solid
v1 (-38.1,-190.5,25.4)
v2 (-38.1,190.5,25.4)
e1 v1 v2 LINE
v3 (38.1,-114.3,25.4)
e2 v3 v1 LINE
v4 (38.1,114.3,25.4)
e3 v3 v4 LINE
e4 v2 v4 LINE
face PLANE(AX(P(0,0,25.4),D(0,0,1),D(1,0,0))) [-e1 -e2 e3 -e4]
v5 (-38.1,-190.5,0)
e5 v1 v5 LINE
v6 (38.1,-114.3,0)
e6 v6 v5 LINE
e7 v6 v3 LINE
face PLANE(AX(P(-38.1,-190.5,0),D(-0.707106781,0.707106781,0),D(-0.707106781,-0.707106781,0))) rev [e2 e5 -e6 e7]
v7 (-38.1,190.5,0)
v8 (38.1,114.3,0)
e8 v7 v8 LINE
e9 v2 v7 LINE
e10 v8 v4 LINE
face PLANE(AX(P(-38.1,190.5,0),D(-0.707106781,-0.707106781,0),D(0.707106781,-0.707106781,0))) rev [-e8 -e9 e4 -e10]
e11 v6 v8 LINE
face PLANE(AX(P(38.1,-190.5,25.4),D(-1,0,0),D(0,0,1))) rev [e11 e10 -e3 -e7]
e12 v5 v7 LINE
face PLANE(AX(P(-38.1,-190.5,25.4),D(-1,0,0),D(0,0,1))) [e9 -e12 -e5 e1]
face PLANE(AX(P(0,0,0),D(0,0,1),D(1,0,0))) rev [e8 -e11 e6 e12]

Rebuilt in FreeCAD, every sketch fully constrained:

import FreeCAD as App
import Part
import Sketcher
Q = App.Units.Quantity


def add_polygon(sketch, points):
    """Adds a closed chain of lines whose ends are joined by coincident constraints."""
    first, n = sketch.GeometryCount, len(points)
    for a, b in zip(points, points[1:] + points[:1]):
        sketch.addGeometry(Part.LineSegment(App.Vector(*a, 0), App.Vector(*b, 0)), False)
    for i in range(n):
        sketch.addConstraint(Sketcher.Constraint("Coincident", first + i, 2, first + (i + 1) % n, 1))

doc = App.newDocument("Part")
body = doc.addObject("PartDesign::Body", "Body")

# Sketch on XY plane
sketch1 = doc.addObject("Sketcher::SketchObject", "Sketch")
body.addObject(sketch1)
sketch1.AttachmentSupport = (doc.XY_Plane, [""])
sketch1.MapMode = "FlatFace"
add_polygon(sketch1, [(-38.1, 190.5), (-38.1, -190.5), (38.1, -190.5), (38.1, 190.5)])  # lines 0-3
sketch1.addConstraint([
    Sketcher.Constraint("Vertical", 0),
    Sketcher.Constraint("Horizontal", 1),
    Sketcher.Constraint("Vertical", 2),
    Sketcher.Constraint("Horizontal", 3),
    Sketcher.Constraint("Symmetric", 0, 2, 2, 2, -1, 1),
    Sketcher.Constraint("DistanceX", 1, 1, 1, 2, Q("3 in")),
    Sketcher.Constraint("DistanceY", 0, 2, 0, 1, Q("15 in")),
])
pad1 = doc.addObject("PartDesign::Pad", "Pad")
body.addObject(pad1)
pad1.Profile = sketch1
pad1.Length = Q("1 in")

# Sketch on XY plane
sketch2 = doc.addObject("Sketcher::SketchObject", "Sketch001")
body.addObject(sketch2)
sketch2.AttachmentSupport = (doc.XY_Plane, [""])
sketch2.MapMode = "FlatFace"
sketch2.AttachmentOffset = App.Placement(App.Vector(0, 0, 1 * 25.4), App.Rotation())
add_polygon(sketch2, [(-38.1, 190.5), (38.1, 114.3), (38.1, 190.5)])  # lines 0-2
add_polygon(sketch2, [(38.1, -114.3), (-38.1, -190.5), (38.1, -190.5)])  # lines 3-5
sketch2.addConstraint([
    Sketcher.Constraint("Vertical", 1),
    Sketcher.Constraint("Horizontal", 2),
    Sketcher.Constraint("Horizontal", 4),
    Sketcher.Constraint("Vertical", 5),
    Sketcher.Constraint("Symmetric", 1, 2, 3, 2, -1, 1),
    Sketcher.Constraint("Symmetric", 0, 2, 5, 2, -1),
    Sketcher.Constraint("Perpendicular", 0, 3),
    Sketcher.Constraint("Vertical", 2, 2, 3, 2),
    Sketcher.Constraint("DistanceX", 2, 2, 2, 1, Q("3 in")),
    Sketcher.Constraint("DistanceY", 3, 2, 0, 2, Q("12 in")),
])
pocket1 = doc.addObject("PartDesign::Pocket", "Pocket")
body.addObject(pocket1)
pocket1.Profile = sketch2
pocket1.Length = Q("1 in")

doc.recompute()
